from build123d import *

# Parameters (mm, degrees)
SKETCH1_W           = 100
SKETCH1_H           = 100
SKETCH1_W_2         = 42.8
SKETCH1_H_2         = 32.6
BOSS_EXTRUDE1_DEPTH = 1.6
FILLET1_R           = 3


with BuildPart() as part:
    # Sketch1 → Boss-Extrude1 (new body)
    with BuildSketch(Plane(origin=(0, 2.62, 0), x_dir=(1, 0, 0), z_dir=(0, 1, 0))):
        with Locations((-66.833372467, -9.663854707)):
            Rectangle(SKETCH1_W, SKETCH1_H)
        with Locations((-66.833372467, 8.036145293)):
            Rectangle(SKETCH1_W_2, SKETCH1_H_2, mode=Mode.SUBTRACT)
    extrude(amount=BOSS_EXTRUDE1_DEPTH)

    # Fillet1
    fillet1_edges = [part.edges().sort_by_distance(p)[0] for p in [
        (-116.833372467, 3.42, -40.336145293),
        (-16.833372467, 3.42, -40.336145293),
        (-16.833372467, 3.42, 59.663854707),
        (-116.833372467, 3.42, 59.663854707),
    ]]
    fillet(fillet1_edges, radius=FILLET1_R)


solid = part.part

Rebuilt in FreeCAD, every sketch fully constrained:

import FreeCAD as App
import Part
import Sketcher

V = App.Vector


def edges_at(feature, points):
    """Names of the edges that pass closest to the given points."""
    edges = feature.Shape.Edges
    near = lambda p: min(range(len(edges)), key=lambda i: edges[i].distToShape(Part.Vertex(*p))[0])
    return sorted({f"Edge{near(p) + 1}" for p in points})

doc = App.newDocument("Part")
params = doc.addObject("Spreadsheet::Sheet", "Params")
for row, (alias, value) in enumerate([
    ("sketch1_width", "100 mm"),
    ("sketch1_width2", "42.8 mm"),
    ("sketch1_height", "32.6 mm"),
    ("pad1_length", "1.6 mm"),
    ("fillet_radius", "3 mm"),
], start=1):
    params.set(f"A{row}", alias)
    params.set(f"B{row}", "=" + value)
    params.setAlias(f"B{row}", alias)

body = doc.addObject("PartDesign::Body", "Body")

# Sketch on XZ plane
sketch1 = body.newObject("Sketcher::SketchObject", "Sketch")
sketch1.AttachmentSupport = (doc.getObject("XZ_Plane"), [""])
sketch1.MapMode = "FlatFace"
sketch1.AttachmentOffset = App.Placement(V(0, 0, -2.62), App.Rotation())
sketch1.addGeometry(Part.LineSegment(V(-116.833372, -40.336145, 0), V(-116.833372, 59.663855, 0)), False)
sketch1.addGeometry(Part.LineSegment(V(-116.833372, 59.663855, 0), V(-16.833372, 59.663855, 0)), False)
sketch1.addGeometry(Part.LineSegment(V(-16.833372, 59.663855, 0), V(-16.833372, -40.336145, 0)), False)
sketch1.addGeometry(Part.LineSegment(V(-16.833372, -40.336145, 0), V(-116.833372, -40.336145, 0)), False)
sketch1.addGeometry(Part.LineSegment(V(-45.433372, 8.263855, 0), V(-88.233372, 8.263855, 0)), False)
sketch1.addGeometry(Part.LineSegment(V(-88.233372, 8.263855, 0), V(-88.233372, -24.336145, 0)), False)
sketch1.addGeometry(Part.LineSegment(V(-88.233372, -24.336145, 0), V(-45.433372, -24.336145, 0)), False)
sketch1.addGeometry(Part.LineSegment(V(-45.433372, -24.336145, 0), V(-45.433372, 8.263855, 0)), False)
sketch1.addConstraint(Sketcher.Constraint("Coincident", 0, 2, 1, 1))
sketch1.addConstraint(Sketcher.Constraint("Coincident", 1, 2, 2, 1))
sketch1.addConstraint(Sketcher.Constraint("Coincident", 2, 2, 3, 1))
sketch1.addConstraint(Sketcher.Constraint("Coincident", 3, 2, 0, 1))
sketch1.addConstraint(Sketcher.Constraint("Coincident", 4, 2, 5, 1))
sketch1.addConstraint(Sketcher.Constraint("Coincident", 5, 2, 6, 1))
sketch1.addConstraint(Sketcher.Constraint("Coincident", 6, 2, 7, 1))
sketch1.addConstraint(Sketcher.Constraint("Coincident", 7, 2, 4, 1))
sketch1.addConstraint(Sketcher.Constraint("Vertical", 0))
sketch1.addConstraint(Sketcher.Constraint("Horizontal", 1))
sketch1.addConstraint(Sketcher.Constraint("Vertical", 2))
sketch1.addConstraint(Sketcher.Constraint("Horizontal", 3))
sketch1.addConstraint(Sketcher.Constraint("Horizontal", 4))
sketch1.addConstraint(Sketcher.Constraint("Vertical", 5))
sketch1.addConstraint(Sketcher.Constraint("Horizontal", 6))
sketch1.addConstraint(Sketcher.Constraint("Vertical", 7))
sketch1.addConstraint(Sketcher.Constraint("Equal", 3, 0))
sketch1.addConstraint(Sketcher.Constraint("DistanceX", 1, 1, 1, 2, 100.0))
sketch1.addConstraint(Sketcher.Constraint("DistanceX", 4, 2, 4, 1, 42.8))
sketch1.addConstraint(Sketcher.Constraint("DistanceY", 5, 2, 5, 1, 32.6))
sketch1.addConstraint(Sketcher.Constraint("DistanceY", 3, 2, 5, 2, 16.0))
sketch1.addConstraint(Sketcher.Constraint("DistanceX", 3, 2, 4, 2, 28.6))
sketch1.addConstraint(Sketcher.Constraint("DistanceX", 0, 2, -1, 1, 116.833372))
sketch1.addConstraint(Sketcher.Constraint("DistanceY", -1, 1, 0, 2, 59.663855))
sketch1.setExpression("Constraints[17]", "Params.sketch1_width")
sketch1.setExpression("Constraints[18]", "Params.sketch1_width2")
sketch1.setExpression("Constraints[19]", "Params.sketch1_height")
pad1 = body.newObject("PartDesign::Pad", "Pad")
pad1.Profile = sketch1
pad1.setExpression("Length", "Params.pad1_length")
pad1.Reversed = True
doc.recompute()

fillet = body.newObject("PartDesign::Fillet", "Fillet")
fillet.Base = (pad1, edges_at(pad1, [
    (-116.833, 3.42, -40.336),
    (-16.833, 3.42, -40.336),
    (-16.833, 3.42, 59.664),
    (-116.833, 3.42, 59.664),
]))
fillet.setExpression("Radius", "Params.fillet_radius")

doc.recompute()
